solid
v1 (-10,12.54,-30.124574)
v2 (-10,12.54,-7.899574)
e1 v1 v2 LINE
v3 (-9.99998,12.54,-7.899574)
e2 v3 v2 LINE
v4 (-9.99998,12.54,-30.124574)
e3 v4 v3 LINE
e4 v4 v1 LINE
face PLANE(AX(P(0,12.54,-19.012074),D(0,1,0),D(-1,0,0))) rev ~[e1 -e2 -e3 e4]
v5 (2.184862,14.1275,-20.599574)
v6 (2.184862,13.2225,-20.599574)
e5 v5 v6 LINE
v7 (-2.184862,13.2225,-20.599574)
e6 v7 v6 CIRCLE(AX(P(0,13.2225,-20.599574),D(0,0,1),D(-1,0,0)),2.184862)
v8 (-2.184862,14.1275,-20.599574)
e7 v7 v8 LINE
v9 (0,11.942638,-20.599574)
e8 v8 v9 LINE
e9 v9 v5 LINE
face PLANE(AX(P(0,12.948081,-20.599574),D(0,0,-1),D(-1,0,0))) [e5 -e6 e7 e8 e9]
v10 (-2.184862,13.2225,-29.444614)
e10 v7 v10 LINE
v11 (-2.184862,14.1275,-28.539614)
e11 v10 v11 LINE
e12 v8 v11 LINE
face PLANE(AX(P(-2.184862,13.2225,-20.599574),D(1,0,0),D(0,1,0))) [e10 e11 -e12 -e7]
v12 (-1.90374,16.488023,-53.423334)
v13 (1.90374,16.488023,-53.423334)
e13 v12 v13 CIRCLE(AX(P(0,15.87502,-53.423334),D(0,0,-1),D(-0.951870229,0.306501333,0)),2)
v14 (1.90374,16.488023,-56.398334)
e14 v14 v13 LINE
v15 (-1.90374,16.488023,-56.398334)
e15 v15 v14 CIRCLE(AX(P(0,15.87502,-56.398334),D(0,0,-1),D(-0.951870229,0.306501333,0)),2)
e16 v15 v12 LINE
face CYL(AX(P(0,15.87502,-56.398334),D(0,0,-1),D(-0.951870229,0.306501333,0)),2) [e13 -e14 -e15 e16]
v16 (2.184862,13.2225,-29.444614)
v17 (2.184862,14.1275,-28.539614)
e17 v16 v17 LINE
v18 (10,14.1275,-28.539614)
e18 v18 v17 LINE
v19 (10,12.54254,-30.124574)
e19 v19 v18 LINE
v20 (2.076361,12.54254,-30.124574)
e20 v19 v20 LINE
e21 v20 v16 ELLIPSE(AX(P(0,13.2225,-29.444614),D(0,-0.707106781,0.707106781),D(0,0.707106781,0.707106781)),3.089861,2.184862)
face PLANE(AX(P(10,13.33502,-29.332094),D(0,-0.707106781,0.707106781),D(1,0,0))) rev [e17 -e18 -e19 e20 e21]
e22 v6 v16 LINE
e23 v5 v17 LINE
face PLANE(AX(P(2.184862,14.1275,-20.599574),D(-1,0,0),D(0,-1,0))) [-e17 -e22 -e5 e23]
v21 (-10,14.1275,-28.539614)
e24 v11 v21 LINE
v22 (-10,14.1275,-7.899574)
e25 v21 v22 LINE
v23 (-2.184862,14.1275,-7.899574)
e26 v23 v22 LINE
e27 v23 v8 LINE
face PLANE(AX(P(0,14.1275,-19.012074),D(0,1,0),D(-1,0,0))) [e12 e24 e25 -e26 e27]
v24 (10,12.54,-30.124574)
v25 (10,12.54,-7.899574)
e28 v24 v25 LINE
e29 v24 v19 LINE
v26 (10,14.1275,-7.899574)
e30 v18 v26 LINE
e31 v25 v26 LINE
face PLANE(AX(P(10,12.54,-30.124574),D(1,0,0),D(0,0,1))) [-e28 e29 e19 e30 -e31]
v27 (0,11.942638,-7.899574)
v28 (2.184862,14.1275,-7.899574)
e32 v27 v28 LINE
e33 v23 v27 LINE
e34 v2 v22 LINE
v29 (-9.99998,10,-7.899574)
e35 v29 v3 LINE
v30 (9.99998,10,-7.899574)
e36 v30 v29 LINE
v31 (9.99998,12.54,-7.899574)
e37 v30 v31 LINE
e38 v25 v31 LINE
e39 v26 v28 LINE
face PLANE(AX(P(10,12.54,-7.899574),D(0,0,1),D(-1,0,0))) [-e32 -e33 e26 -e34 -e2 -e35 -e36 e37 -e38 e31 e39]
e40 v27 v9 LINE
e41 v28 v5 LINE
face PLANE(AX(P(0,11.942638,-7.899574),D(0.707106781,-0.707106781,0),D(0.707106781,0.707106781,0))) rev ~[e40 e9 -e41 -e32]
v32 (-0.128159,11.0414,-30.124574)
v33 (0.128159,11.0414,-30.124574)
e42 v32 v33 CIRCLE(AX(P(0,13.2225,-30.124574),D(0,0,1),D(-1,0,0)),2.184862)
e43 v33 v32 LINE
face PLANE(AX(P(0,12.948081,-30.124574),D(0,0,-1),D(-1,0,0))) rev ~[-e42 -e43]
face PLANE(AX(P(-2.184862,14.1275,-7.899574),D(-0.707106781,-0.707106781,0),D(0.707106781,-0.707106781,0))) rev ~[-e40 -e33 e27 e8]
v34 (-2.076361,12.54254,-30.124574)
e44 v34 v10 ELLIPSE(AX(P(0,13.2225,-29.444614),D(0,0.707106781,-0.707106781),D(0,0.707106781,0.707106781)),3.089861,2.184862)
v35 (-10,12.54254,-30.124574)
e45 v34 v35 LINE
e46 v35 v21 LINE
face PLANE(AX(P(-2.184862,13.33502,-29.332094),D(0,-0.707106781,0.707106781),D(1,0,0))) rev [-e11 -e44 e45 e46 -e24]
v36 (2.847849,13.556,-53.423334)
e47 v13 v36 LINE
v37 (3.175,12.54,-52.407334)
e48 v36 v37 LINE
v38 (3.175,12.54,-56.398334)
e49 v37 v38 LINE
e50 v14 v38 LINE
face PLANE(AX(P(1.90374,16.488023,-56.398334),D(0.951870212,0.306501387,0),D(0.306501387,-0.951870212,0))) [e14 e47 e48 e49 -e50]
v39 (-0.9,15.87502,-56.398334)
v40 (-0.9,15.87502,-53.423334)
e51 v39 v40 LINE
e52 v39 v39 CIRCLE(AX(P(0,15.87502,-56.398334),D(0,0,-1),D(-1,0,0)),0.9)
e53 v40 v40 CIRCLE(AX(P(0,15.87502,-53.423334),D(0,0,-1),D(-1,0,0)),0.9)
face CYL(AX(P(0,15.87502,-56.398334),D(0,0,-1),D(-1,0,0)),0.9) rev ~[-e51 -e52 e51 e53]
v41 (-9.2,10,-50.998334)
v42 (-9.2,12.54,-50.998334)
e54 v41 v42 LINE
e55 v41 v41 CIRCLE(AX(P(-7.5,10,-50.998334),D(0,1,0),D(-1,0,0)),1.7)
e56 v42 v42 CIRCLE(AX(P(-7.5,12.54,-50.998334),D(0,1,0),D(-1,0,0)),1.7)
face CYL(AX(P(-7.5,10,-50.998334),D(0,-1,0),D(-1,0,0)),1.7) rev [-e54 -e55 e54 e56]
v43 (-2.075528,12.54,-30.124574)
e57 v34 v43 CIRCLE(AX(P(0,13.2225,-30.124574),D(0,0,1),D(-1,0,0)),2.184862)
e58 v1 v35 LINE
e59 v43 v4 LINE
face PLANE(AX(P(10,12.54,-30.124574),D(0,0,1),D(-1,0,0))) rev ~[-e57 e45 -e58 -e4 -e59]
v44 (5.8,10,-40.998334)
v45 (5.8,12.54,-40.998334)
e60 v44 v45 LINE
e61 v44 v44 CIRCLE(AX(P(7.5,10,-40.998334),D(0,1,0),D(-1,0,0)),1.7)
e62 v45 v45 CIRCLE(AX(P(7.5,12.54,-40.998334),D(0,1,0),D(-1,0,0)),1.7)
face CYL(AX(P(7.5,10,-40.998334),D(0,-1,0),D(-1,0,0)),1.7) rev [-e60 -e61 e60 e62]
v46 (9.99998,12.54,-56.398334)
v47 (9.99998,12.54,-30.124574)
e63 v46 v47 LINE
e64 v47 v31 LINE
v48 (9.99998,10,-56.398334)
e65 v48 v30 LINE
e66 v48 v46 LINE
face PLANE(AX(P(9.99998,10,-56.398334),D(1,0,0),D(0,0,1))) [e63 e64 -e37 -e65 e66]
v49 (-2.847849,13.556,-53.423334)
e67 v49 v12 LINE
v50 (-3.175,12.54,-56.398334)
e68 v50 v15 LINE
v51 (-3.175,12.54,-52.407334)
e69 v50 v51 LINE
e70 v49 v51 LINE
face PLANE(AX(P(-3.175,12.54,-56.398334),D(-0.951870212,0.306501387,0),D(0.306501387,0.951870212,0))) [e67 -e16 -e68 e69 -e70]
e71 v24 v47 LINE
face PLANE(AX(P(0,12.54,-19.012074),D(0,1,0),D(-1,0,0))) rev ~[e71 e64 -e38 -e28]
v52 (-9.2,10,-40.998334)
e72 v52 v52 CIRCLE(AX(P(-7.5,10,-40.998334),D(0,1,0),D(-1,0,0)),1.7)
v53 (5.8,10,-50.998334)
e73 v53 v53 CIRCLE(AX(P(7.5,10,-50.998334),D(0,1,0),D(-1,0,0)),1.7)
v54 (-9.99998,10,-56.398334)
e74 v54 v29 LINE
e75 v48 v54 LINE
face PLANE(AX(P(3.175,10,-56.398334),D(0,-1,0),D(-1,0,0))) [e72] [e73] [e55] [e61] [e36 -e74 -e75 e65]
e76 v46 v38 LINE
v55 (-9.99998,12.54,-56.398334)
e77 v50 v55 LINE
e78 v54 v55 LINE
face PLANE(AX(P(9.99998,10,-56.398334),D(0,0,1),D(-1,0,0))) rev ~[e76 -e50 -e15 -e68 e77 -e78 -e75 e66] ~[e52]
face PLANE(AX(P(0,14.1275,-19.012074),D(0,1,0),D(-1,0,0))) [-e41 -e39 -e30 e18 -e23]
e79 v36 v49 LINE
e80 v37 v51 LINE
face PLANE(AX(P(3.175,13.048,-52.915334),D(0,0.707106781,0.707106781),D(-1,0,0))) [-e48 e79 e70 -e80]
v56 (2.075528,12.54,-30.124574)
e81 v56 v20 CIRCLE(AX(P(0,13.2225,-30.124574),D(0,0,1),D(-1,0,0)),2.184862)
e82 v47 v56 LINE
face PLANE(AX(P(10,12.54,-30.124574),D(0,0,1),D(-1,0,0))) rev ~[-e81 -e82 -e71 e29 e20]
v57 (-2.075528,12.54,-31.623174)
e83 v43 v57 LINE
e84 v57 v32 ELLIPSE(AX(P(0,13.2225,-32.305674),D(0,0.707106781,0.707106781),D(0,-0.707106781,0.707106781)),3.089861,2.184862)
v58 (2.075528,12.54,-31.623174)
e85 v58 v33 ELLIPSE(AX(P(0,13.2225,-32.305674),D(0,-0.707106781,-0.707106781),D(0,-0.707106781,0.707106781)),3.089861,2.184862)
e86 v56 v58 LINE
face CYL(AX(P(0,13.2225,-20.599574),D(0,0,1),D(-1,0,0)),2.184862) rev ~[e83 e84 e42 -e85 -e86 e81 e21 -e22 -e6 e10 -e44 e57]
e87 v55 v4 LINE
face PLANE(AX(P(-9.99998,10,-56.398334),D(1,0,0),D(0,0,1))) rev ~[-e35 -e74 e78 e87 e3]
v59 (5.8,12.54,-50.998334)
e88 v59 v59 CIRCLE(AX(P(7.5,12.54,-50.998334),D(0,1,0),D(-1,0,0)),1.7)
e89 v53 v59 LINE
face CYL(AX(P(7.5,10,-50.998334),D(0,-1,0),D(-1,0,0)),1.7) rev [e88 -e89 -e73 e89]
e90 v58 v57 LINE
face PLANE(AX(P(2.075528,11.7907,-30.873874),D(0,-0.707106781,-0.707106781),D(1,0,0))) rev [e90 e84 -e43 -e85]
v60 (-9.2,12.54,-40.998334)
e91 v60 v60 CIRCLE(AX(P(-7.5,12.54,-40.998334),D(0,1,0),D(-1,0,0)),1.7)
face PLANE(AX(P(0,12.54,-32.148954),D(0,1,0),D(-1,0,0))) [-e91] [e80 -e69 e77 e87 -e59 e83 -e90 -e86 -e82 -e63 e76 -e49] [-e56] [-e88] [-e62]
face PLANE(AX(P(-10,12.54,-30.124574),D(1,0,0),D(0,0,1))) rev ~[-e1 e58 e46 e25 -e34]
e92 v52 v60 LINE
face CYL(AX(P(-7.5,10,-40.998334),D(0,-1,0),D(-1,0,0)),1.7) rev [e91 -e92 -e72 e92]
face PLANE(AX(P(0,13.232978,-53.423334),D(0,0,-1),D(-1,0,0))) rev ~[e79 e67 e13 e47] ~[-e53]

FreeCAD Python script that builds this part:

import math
import FreeCAD as App
import Part
import Sketcher
Q = App.Units.Quantity


def edges_at(feature, points):
    """Names of the edges that pass closest to the given points."""
    edges = feature.Shape.Edges
    near = lambda p: min(range(len(edges)), key=lambda i: edges[i].distToShape(Part.Vertex(*p))[0])
    return sorted({f"Edge{near(p) + 1}" for p in points})


def add_polygon(sketch, points):
    """Adds a closed chain of lines whose ends are joined by coincident constraints."""
    first, n = sketch.GeometryCount, len(points)
    for a, b in zip(points, points[1:] + points[:1]):
        sketch.addGeometry(Part.LineSegment(App.Vector(*a, 0), App.Vector(*b, 0)), False)
    for i in range(n):
        sketch.addConstraint(Sketcher.Constraint("Coincident", first + i, 2, first + (i + 1) % n, 1))

doc = App.newDocument("Part")
body = doc.addObject("PartDesign::Body", "Body")

sketch1 = body.newObject("Sketcher::SketchObject", "Sketch")
sketch1.AttachmentSupport = (doc.getObject("XZ_Plane"), [""])
sketch1.MapMode = "FlatFace"
sketch1.AttachmentOffset = App.Placement(App.Vector(0, 0, -10), App.Rotation())
add_polygon(sketch1, [(9.99998, -7.899574), (9.99998, -56.398334), (-9.99998, -56.398334), (-9.99998, -7.899574)])
sketch1.addGeometry(Part.Circle(App.Vector(7.5, -50.998334, 0), App.Vector(0, 0, 1), 1.7), False)
sketch1.addGeometry(Part.Circle(App.Vector(-7.5, -50.998334, 0), App.Vector(0, 0, 1), 1.7), False)
sketch1.addGeometry(Part.Circle(App.Vector(7.5, -40.998334, 0), App.Vector(0, 0, 1), 1.7), False)
sketch1.addGeometry(Part.Circle(App.Vector(-7.5, -40.998334, 0), App.Vector(0, 0, 1), 1.7), False)
sketch1.addConstraint(Sketcher.Constraint("Vertical", 0))
sketch1.addConstraint(Sketcher.Constraint("Horizontal", 1))
sketch1.addConstraint(Sketcher.Constraint("Vertical", 2))
sketch1.addConstraint(Sketcher.Constraint("Horizontal", 3))
sketch1.addConstraint(Sketcher.Constraint("Equal", 4, 5))
sketch1.addConstraint(Sketcher.Constraint("Equal", 5, 6))
sketch1.addConstraint(Sketcher.Constraint("Equal", 6, 7))
sketch1.addConstraint(Sketcher.Constraint("Symmetric", 4, 3, 5, 3, -2))
sketch1.addConstraint(Sketcher.Constraint("Symmetric", 6, 3, 7, 3, -2))
sketch1.addConstraint(Sketcher.Constraint("Vertical", 4, 3, 6, 3))
sketch1.addConstraint(Sketcher.Constraint("Diameter", 4, Q("3.4 mm")))
sketch1.addConstraint(Sketcher.Constraint("DistanceX", 1, 2, 1, 1, Q("0.7874 in")))
sketch1.addConstraint(Sketcher.Constraint("DistanceY", 0, 2, 0, 1, Q("1.9094 in")))
sketch1.addConstraint(Sketcher.Constraint("DistanceX", -1, 1, 0, 2, Q("0.3937 in")))
sketch1.addConstraint(Sketcher.Constraint("DistanceX", -1, 1, 4, 3, Q("7.5 mm")))
sketch1.addConstraint(Sketcher.Constraint("DistanceY", 4, 3, 6, 3, Q("10 mm")))
sketch1.addConstraint(Sketcher.Constraint("DistanceY", 0, 2, 4, 3, Q("5.4 mm")))
sketch1.addConstraint(Sketcher.Constraint("DistanceY", 4, 3, -1, 1, Q("50.998334 mm")))
pad1 = body.newObject("PartDesign::Pad", "Pad")
pad1.Profile = sketch1
pad1.Length = Q("0.1 in")
pad1.Reversed = True

sketch2 = body.newObject("Sketcher::SketchObject", "Sketch001")
sketch2.AttachmentSupport = (doc.getObject("XZ_Plane"), [""])
sketch2.MapMode = "FlatFace"
sketch2.AttachmentOffset = App.Placement(App.Vector(0, 0, -12.54), App.Rotation())
add_polygon(sketch2, [(10, -7.899574), (10, -30.124574), (-10, -30.124574), (-10, -7.899574)])
sketch2.addConstraint(Sketcher.Constraint("Vertical", 0))
sketch2.addConstraint(Sketcher.Constraint("Horizontal", 1))
sketch2.addConstraint(Sketcher.Constraint("Vertical", 2))
sketch2.addConstraint(Sketcher.Constraint("Horizontal", 3))
sketch2.addConstraint(Sketcher.Constraint("DistanceY", 0, 2, 0, 1, Q("0.875 in")))
sketch2.addConstraint(Sketcher.Constraint("DistanceX", 1, 2, 1, 1, Q("20 mm")))
sketch2.addConstraint(Sketcher.Constraint("DistanceX", -1, 1, 0, 2, Q("10 mm")))
sketch2.addConstraint(Sketcher.Constraint("DistanceY", 0, 2, -1, 1, Q("30.124574 mm")))
pad2 = body.newObject("PartDesign::Pad", "Pad001")
pad2.Profile = sketch2
pad2.Length = Q("0.0625 in")
pad2.Reversed = True

sketch3 = body.newObject("Sketcher::SketchObject", "Sketch002")
sketch3.AttachmentSupport = (doc.getObject("XY_Plane"), [""])
sketch3.MapMode = "FlatFace"
sketch3.AttachmentOffset = App.Placement(App.Vector(0, 0, -7.899574), App.Rotation())
add_polygon(sketch3, [(-2.184862, 14.1275), (0, 11.942638), (2.184862, 14.1275)])
sketch3.addConstraint(Sketcher.Constraint("Horizontal", 2))
sketch3.addConstraint(Sketcher.Constraint("PointOnObject", 0, 2, -2))
sketch3.addConstraint(Sketcher.Constraint("Perpendicular", 0, 1))
sketch3.addConstraint(Sketcher.Constraint("Equal", 0, 1))
sketch3.addConstraint(Sketcher.Constraint("DistanceY", -1, 1, 1, 2, Q("14.1275 mm")))
sketch3.addConstraint(Sketcher.Constraint("Distance", 0, Q("3.089861 mm")))
pocket1 = body.newObject("PartDesign::Pocket", "Pocket")
pocket1.Profile = sketch3
pocket1.Length = Q("0.5 in")

sketch4 = body.newObject("Sketcher::SketchObject", "Sketch003")
sketch4.AttachmentSupport = (doc.getObject("XY_Plane"), [""])
sketch4.MapMode = "FlatFace"
sketch4.AttachmentOffset = App.Placement(App.Vector(0, 0, -20.599574), App.Rotation())
sketch4.addGeometry(Part.LineSegment(App.Vector(-2.184862, 14.1275, 0), App.Vector(-2.184862, 13.2225, 0)), False)
sketch4.addGeometry(Part.ArcOfCircle(Part.Circle(App.Vector(0, 13.2225, 0), App.Vector(0, 0, 1), 2.184862), math.radians(180), math.radians(360)), False)
sketch4.addGeometry(Part.LineSegment(App.Vector(2.184862, 13.2225, 0), App.Vector(2.184862, 14.1275, 0)), False)
sketch4.addGeometry(Part.LineSegment(App.Vector(2.184862, 14.1275, 0), App.Vector(-2.184862, 14.1275, 0)), False)
sketch4.addConstraint(Sketcher.Constraint("Tangent", 0, 2, 1, 1))
sketch4.addConstraint(Sketcher.Constraint("Tangent", 1, 2, 2, 1))
sketch4.addConstraint(Sketcher.Constraint("Coincident", 2, 2, 3, 1))
sketch4.addConstraint(Sketcher.Constraint("Coincident", 3, 2, 0, 1))
sketch4.addConstraint(Sketcher.Constraint("Vertical", 0))
sketch4.addConstraint(Sketcher.Constraint("Vertical", 2))
sketch4.addConstraint(Sketcher.Constraint("Horizontal", 3))
sketch4.addConstraint(Sketcher.Constraint("PointOnObject", 1, 3, -2))
sketch4.addConstraint(Sketcher.Constraint("Radius", 1, Q("2.184862 mm")))
sketch4.addConstraint(Sketcher.Constraint("DistanceY", 0, 2, 0, 1, Q("0.905 mm")))
sketch4.addConstraint(Sketcher.Constraint("DistanceY", -1, 1, 1, 3, Q("13.2225 mm")))
pocket2 = body.newObject("PartDesign::Pocket", "Pocket001")
pocket2.Profile = sketch4
pocket2.Length = Q("0.375 in")
doc.recompute()

chamfer = body.newObject("PartDesign::Chamfer", "Chamfer")
chamfer.Base = (pocket2, edges_at(pocket2, [(0, 12.54, -30.125)]))
chamfer.Size = Q("0.059 in")

sketch5 = body.newObject("Sketcher::SketchObject", "Sketch004")
sketch5.AttachmentSupport = (doc.getObject("XY_Plane"), [""])
sketch5.MapMode = "FlatFace"
sketch5.AttachmentOffset = App.Placement(App.Vector(0, 0, -56.398334), App.Rotation())
sketch5.addGeometry(Part.LineSegment(App.Vector(3.175, 12.54, 0), App.Vector(3.175, 10, 0)), False)
sketch5.addGeometry(Part.LineSegment(App.Vector(3.175, 10, 0), App.Vector(-3.175, 10, 0)), False)
sketch5.addGeometry(Part.LineSegment(App.Vector(-3.175, 10, 0), App.Vector(-3.175, 12.54, 0)), False)
sketch5.addGeometry(Part.LineSegment(App.Vector(-3.175, 12.54, 0), App.Vector(-1.90374, 16.488023, 0)), False)
sketch5.addGeometry(Part.ArcOfCircle(Part.Circle(App.Vector(0, 15.87502, 0), App.Vector(0, 0, 1), 2), math.radians(17.848511), math.radians(162.151489)), False)
sketch5.addGeometry(Part.LineSegment(App.Vector(1.90374, 16.488023, 0), App.Vector(3.175, 12.54, 0)), False)
sketch5.addGeometry(Part.Circle(App.Vector(0, 15.87502, 0), App.Vector(0, 0, 1), 0.9), False)
sketch5.addConstraint(Sketcher.Constraint("Coincident", 0, 2, 1, 1))
sketch5.addConstraint(Sketcher.Constraint("Coincident", 1, 2, 2, 1))
sketch5.addConstraint(Sketcher.Constraint("Coincident", 2, 2, 3, 1))
sketch5.addConstraint(Sketcher.Constraint("Tangent", 3, 2, 4, 2))
sketch5.addConstraint(Sketcher.Constraint("Tangent", 4, 1, 5, 1))
sketch5.addConstraint(Sketcher.Constraint("Coincident", 5, 2, 0, 1))
sketch5.addConstraint(Sketcher.Constraint("Vertical", 0))
sketch5.addConstraint(Sketcher.Constraint("Horizontal", 1))
sketch5.addConstraint(Sketcher.Constraint("Vertical", 2))
sketch5.addConstraint(Sketcher.Constraint("Coincident", 6, 3, 4, 3))
sketch5.addConstraint(Sketcher.Constraint("Symmetric", 3, 2, 4, 1, -2))
sketch5.addConstraint(Sketcher.Constraint("Horizontal", 2, 2, 5, 2))
sketch5.addConstraint(Sketcher.Constraint("DistanceY", 0, 2, 0, 1, Q("0.1 in")))
sketch5.addConstraint(Sketcher.Constraint("DistanceX", 1, 2, 1, 1, Q("0.25 in")))
sketch5.addConstraint(Sketcher.Constraint("Diameter", 6, Q("1.8 mm")))
sketch5.addConstraint(Sketcher.Constraint("Radius", 4, Q("2 mm")))
sketch5.addConstraint(Sketcher.Constraint("DistanceY", 0, 2, 6, 3, Q("0.2313 in")))
sketch5.addConstraint(Sketcher.Constraint("DistanceY", -1, 1, 0, 2, Q("10 mm")))
pad3 = body.newObject("PartDesign::Pad", "Pad002")
pad3.Profile = sketch5
pad3.Length = 2.975
doc.recompute()

chamfer2 = body.newObject("PartDesign::Chamfer", "Chamfer001")
chamfer2.Base = (pad3, edges_at(pad3, [(0, 12.54, -53.423)]))
chamfer2.Size = Q("0.04 in")
doc.recompute()

chamfer3 = body.newObject("PartDesign::Chamfer", "Chamfer002")
chamfer3.Base = (chamfer2, edges_at(chamfer2, [(6.092, 14.127, -30.125), (-6.092, 14.127, -30.125)]))
chamfer3.Size = Q("0.0624 in")

doc.recompute()
